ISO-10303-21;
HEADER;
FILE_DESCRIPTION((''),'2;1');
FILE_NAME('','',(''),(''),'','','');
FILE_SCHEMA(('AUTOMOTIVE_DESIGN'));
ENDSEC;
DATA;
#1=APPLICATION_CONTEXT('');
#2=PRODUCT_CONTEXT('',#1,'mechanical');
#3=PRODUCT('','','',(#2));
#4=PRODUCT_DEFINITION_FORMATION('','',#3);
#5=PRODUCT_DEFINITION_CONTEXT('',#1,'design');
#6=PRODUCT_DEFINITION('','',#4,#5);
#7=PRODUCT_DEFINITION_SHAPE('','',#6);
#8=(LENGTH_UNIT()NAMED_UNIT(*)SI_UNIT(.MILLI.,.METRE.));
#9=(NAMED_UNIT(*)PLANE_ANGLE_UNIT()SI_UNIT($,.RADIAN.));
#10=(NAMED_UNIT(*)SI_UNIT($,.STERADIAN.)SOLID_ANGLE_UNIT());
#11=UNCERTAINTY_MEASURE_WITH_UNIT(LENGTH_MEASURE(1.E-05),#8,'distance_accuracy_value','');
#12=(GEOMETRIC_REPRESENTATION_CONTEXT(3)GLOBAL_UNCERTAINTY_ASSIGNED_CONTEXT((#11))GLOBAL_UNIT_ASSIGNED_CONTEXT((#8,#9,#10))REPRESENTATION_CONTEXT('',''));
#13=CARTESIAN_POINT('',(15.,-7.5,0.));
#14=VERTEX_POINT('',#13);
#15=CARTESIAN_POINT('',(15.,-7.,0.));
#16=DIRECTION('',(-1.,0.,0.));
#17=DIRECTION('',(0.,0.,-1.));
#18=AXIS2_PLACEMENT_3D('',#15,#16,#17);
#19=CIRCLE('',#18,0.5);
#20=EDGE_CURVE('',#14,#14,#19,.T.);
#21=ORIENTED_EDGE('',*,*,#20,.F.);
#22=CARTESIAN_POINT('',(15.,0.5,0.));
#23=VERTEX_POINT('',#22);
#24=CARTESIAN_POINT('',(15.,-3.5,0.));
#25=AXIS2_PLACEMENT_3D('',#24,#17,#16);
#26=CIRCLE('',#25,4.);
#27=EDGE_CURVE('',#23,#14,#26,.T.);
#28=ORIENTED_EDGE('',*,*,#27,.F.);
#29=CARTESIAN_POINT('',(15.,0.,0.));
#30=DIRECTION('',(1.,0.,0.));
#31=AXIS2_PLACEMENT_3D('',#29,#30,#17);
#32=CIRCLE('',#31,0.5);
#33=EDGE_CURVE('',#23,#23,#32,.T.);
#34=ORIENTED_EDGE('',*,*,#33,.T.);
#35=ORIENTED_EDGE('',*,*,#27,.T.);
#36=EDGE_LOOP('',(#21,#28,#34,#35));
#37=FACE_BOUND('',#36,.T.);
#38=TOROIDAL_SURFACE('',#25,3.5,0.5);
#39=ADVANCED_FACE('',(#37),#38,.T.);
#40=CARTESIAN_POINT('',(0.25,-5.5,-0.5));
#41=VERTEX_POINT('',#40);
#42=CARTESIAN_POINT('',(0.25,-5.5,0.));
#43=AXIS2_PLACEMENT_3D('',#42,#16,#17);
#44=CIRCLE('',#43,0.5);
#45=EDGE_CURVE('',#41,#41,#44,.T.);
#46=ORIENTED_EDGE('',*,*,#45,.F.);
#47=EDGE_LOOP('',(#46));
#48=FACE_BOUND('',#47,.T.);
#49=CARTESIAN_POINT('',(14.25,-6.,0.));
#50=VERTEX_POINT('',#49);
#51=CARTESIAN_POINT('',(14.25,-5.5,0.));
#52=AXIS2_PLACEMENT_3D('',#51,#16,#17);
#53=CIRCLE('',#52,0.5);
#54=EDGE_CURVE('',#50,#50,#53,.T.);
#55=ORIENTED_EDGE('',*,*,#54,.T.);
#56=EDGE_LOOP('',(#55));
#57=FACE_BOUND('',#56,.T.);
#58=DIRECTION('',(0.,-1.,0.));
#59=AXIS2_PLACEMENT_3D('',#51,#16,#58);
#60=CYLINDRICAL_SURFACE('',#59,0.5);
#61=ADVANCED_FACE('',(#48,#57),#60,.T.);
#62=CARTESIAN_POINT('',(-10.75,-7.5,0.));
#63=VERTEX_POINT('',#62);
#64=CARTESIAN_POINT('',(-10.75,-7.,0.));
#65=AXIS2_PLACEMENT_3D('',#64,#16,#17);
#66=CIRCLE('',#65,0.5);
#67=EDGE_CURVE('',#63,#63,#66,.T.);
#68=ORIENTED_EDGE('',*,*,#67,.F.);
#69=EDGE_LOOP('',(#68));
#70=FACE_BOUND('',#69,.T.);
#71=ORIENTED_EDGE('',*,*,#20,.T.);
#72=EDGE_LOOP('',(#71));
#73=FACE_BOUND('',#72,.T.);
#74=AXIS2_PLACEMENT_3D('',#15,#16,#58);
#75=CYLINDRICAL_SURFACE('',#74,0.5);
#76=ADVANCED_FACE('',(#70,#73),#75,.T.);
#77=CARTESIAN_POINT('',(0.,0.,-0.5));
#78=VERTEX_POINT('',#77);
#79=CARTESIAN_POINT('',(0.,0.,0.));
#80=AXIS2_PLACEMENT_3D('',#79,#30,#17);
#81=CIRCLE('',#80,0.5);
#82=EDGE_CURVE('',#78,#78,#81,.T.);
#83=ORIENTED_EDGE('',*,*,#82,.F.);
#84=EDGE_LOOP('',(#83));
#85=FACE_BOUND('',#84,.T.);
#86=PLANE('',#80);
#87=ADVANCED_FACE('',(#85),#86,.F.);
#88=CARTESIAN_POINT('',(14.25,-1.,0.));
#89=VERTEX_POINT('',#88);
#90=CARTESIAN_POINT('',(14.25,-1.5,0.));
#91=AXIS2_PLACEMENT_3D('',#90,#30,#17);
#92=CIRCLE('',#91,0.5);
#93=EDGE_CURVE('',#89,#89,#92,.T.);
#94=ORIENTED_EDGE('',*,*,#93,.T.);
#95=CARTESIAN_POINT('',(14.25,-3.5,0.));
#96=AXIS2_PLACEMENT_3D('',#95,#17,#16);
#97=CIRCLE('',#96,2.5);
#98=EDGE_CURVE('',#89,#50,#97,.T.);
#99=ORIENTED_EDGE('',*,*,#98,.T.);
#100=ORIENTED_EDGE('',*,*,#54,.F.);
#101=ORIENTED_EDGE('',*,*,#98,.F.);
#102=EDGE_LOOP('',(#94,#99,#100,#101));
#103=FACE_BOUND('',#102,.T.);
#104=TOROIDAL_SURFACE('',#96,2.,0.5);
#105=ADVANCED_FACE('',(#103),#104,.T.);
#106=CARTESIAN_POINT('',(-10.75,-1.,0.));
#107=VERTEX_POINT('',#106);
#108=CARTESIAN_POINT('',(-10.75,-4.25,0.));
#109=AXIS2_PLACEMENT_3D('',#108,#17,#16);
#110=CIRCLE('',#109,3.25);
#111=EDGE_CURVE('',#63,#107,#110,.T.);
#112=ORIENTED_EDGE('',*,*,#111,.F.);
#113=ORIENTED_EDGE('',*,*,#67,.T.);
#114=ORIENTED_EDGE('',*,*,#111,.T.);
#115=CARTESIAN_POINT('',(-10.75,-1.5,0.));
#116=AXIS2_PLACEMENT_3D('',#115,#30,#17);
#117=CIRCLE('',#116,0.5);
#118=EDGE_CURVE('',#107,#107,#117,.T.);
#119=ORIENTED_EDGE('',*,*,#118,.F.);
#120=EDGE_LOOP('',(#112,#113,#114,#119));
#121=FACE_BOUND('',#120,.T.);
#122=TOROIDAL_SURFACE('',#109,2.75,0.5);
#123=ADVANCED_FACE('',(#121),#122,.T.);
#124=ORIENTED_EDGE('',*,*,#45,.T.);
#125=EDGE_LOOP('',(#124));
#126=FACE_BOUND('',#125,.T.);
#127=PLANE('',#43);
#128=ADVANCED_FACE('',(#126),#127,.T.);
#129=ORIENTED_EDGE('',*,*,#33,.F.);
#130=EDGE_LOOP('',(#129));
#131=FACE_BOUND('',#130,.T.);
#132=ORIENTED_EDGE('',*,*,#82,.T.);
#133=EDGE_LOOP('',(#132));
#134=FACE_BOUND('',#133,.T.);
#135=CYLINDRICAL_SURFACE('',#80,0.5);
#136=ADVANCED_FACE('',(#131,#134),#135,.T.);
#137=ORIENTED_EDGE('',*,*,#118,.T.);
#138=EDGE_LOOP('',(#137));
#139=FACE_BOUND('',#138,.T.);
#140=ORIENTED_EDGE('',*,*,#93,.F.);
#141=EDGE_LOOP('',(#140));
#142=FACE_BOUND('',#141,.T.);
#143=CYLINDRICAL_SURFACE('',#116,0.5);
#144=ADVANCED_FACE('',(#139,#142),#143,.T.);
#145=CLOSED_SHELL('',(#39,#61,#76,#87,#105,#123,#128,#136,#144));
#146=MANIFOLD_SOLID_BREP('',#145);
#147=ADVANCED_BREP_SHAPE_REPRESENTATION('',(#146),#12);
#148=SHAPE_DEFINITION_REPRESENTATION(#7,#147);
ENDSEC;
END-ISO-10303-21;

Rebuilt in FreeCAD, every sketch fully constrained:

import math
import FreeCAD as App
import Part
import Sketcher
Q = App.Units.Quantity

doc = App.newDocument("Part")
body = doc.addObject("PartDesign::Body", "Body")

# Sketch on YZ plane
sketch1 = doc.addObject("Sketcher::SketchObject", "Sketch")
body.addObject(sketch1)
sketch1.AttachmentSupport = (doc.YZ_Plane, [""])
sketch1.MapMode = "FlatFace"
sketch1.addGeometry(Part.Circle(App.Vector(0, 0, 0), App.Vector(0, 0, 1), 0.5), False)
sketch1.addConstraint([
    Sketcher.Constraint("Coincident", 0, 3, -1, 1),
    Sketcher.Constraint("Diameter", 0, Q("1 mm")),
])

# Sketch on XY plane
sketch2 = doc.addObject("Sketcher::SketchObject", "Sketch001")
body.addObject(sketch2)
sketch2.AttachmentSupport = (doc.XY_Plane, [""])
sketch2.MapMode = "FlatFace"
sketch2.addGeometry([
    Part.LineSegment(App.Vector(0, 0, 0), App.Vector(15, 0, 0)),  # 0
    Part.ArcOfCircle(Part.Circle(App.Vector(15, -3.5, 0), App.Vector(0, 0, 1), 3.5), math.radians(-90), math.radians(90)),  # 1
    Part.LineSegment(App.Vector(15, -7, 0), App.Vector(-10.75, -7, 0)),  # 2
    Part.ArcOfCircle(Part.Circle(App.Vector(-10.75, -4.25, 0), App.Vector(0, 0, 1), 2.75), math.radians(90), math.radians(270)),  # 3
    Part.LineSegment(App.Vector(-10.75, -1.5, 0), App.Vector(14.25, -1.5, 0)),  # 4
    Part.ArcOfCircle(Part.Circle(App.Vector(14.25, -3.5, 0), App.Vector(0, 0, 1), 2), math.radians(-90), math.radians(90)),  # 5
    Part.LineSegment(App.Vector(14.25, -5.5, 0), App.Vector(0.25, -5.5, 0)),  # 6
], False)
sketch2.addConstraint([
    Sketcher.Constraint("Tangent", 0, 2, 1, 2),
    Sketcher.Constraint("Tangent", 1, 1, 2, 1),
    Sketcher.Constraint("Tangent", 2, 2, 3, 2),
    Sketcher.Constraint("Tangent", 3, 1, 4, 1),
    Sketcher.Constraint("Tangent", 4, 2, 5, 2),
    Sketcher.Constraint("Tangent", 5, 1, 6, 1),
    Sketcher.Constraint("Horizontal", 0),
    Sketcher.Constraint("Horizontal", 2),
    Sketcher.Constraint("Horizontal", 4),
    Sketcher.Constraint("Horizontal", 6),
    Sketcher.Constraint("Coincident", 0, 1, -1, 1),
    Sketcher.Constraint("Horizontal", 1, 3, 5, 3),
    Sketcher.Constraint("Radius", 5, Q("2 mm")),
    Sketcher.Constraint("Radius", 1, Q("3.5 mm")),
    Sketcher.Constraint("DistanceX", 0, 1, 0, 2, Q("15 mm")),
    Sketcher.Constraint("DistanceX", 4, 1, 4, 2, Q("25 mm")),
    Sketcher.Constraint("DistanceX", 6, 2, 6, 1, Q("14 mm")),
    Sketcher.Constraint("DistanceX", 2, 2, 2, 1, Q("25.75 mm")),
])
doc.recompute()

additivepipe = doc.addObject("PartDesign::AdditivePipe", "AdditivePipe")
body.addObject(additivepipe)
additivepipe.Profile = sketch1
additivepipe.Spine = (sketch2, ["Edge1", "Edge2", "Edge3", "Edge4", "Edge5", "Edge6", "Edge7"])

doc.recompute()
